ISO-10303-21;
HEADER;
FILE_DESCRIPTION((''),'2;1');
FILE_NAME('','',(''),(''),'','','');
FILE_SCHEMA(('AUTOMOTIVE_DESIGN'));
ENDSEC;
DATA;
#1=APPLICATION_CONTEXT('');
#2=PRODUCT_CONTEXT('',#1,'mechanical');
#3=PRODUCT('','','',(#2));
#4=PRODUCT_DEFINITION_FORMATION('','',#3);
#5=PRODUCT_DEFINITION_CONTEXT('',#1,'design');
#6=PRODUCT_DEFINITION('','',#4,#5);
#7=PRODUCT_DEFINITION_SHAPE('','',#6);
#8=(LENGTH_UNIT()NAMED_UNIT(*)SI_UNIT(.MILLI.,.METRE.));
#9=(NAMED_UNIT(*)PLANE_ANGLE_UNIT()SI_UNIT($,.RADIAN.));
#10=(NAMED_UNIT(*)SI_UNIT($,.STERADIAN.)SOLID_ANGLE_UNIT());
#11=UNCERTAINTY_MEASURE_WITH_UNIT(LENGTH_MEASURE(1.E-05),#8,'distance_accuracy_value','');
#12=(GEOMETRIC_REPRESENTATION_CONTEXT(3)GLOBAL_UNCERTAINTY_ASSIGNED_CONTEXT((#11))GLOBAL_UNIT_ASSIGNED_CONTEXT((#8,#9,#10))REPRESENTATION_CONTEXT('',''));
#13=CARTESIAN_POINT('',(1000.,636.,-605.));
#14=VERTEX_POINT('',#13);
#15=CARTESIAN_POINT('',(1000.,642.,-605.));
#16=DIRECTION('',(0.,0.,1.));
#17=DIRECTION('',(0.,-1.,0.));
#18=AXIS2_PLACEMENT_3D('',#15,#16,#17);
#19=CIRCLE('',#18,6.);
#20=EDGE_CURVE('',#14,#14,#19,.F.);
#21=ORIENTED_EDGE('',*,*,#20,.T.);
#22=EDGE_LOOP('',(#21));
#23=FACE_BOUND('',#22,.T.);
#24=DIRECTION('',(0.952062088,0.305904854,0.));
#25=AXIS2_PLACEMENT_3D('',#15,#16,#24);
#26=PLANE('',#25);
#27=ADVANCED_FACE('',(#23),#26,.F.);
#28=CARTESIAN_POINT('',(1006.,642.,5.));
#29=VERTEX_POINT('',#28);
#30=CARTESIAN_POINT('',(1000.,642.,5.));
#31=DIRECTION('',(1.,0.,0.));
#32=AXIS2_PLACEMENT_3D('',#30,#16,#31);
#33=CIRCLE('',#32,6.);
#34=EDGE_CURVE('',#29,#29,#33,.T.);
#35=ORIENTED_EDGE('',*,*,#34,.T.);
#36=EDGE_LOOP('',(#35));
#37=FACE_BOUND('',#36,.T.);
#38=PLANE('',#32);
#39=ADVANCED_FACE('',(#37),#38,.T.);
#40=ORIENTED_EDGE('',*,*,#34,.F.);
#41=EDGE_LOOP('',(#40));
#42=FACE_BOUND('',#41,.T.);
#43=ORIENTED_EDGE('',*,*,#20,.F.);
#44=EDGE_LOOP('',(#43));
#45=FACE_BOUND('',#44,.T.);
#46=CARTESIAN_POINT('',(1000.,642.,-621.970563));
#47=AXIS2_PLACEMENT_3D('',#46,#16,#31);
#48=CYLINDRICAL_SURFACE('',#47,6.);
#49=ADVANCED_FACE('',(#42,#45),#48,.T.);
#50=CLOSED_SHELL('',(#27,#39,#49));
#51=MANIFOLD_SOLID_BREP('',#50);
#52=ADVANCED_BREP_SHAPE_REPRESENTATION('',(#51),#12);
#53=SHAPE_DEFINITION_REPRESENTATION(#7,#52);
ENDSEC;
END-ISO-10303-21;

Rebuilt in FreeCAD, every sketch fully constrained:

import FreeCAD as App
import Part
import Sketcher

V = App.Vector
Q = App.Units.Quantity

doc = App.newDocument("Part")
params = doc.addObject("Spreadsheet::Sheet", "Params")
for row, (alias, value) in enumerate([
    ("sketch1_diameter", "12 mm"),
    ("pad1_length", "610 mm"),
], start=1):
    params.set(f"A{row}", alias)
    params.set(f"B{row}", "=" + value)
    params.setAlias(f"B{row}", alias)

body = doc.addObject("PartDesign::Body", "Body")

sketch1 = body.newObject("Sketcher::SketchObject", "Sketch")
sketch1.AttachmentSupport = (doc.getObject("XY_Plane"), [""])
sketch1.MapMode = "FlatFace"
sketch1.AttachmentOffset = App.Placement(V(0, 0, 5), App.Rotation())
sketch1.addGeometry(Part.Circle(V(1000, 642, 0), V(0, 0, 1), 6), False)
sketch1.addConstraint(Sketcher.Constraint("Diameter", 0, Q("12 mm")))
sketch1.addConstraint(Sketcher.Constraint("DistanceX", -1, 1, 0, 3, Q("1000 mm")))
sketch1.addConstraint(Sketcher.Constraint("DistanceY", -1, 1, 0, 3, Q("642 mm")))
sketch1.setExpression("Constraints[0]", "Params.sketch1_diameter")
pad1 = body.newObject("PartDesign::Pad", "Pad")
pad1.Profile = sketch1
pad1.setExpression("Length", "Params.pad1_length")
pad1.Reversed = True

doc.recompute()
